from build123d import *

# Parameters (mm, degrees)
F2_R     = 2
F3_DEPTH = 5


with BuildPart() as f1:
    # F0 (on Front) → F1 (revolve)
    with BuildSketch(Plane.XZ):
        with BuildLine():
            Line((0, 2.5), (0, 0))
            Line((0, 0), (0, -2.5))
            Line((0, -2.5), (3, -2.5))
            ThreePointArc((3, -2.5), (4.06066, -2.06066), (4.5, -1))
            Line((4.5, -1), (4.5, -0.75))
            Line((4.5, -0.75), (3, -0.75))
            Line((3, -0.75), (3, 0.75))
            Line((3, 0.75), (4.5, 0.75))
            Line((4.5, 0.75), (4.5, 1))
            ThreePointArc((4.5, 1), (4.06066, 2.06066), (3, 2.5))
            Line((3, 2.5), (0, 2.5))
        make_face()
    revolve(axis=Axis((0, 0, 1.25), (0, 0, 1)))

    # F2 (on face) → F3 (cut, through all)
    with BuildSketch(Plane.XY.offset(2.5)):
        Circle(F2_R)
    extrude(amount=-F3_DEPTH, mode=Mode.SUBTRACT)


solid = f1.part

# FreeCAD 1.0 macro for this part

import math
import FreeCAD as App
import Part
import Sketcher

V = App.Vector

doc = App.newDocument("Part")
body = doc.addObject("PartDesign::Body", "Body")

# Sketch on XZ plane
sketch1 = body.newObject("Sketcher::SketchObject", "Sketch")
sketch1.AttachmentSupport = (doc.getObject("XZ_Plane"), [""])
sketch1.MapMode = "FlatFace"
sketch1.addGeometry(Part.LineSegment(V(0, 2.5, 0), V(0, -2.5, 0)), False)
sketch1.addGeometry(Part.LineSegment(V(0, -2.5, 0), V(3, -2.5, 0)), False)
sketch1.addGeometry(Part.ArcOfCircle(Part.Circle(V(3, -1, 0), V(0, 0, 1), 1.5), math.radians(-90), math.radians(0)), False)
sketch1.addGeometry(Part.LineSegment(V(4.5, -1, 0), V(4.5, -0.75, 0)), False)
sketch1.addGeometry(Part.LineSegment(V(4.5, -0.75, 0), V(3, -0.75, 0)), False)
sketch1.addGeometry(Part.LineSegment(V(3, -0.75, 0), V(3, 0.75, 0)), False)
sketch1.addGeometry(Part.LineSegment(V(3, 0.75, 0), V(4.5, 0.75, 0)), False)
sketch1.addGeometry(Part.LineSegment(V(4.5, 0.75, 0), V(4.5, 1, 0)), False)
sketch1.addGeometry(Part.ArcOfCircle(Part.Circle(V(3, 1, 0), V(0, 0, 1), 1.5), math.radians(0), math.radians(90)), False)
sketch1.addGeometry(Part.LineSegment(V(3, 2.5, 0), V(0, 2.5, 0)), False)
sketch1.addConstraint(Sketcher.Constraint("Coincident", 0, 2, 1, 1))
sketch1.addConstraint(Sketcher.Constraint("Tangent", 1, 2, 2, 1))
sketch1.addConstraint(Sketcher.Constraint("Tangent", 2, 2, 3, 1))
sketch1.addConstraint(Sketcher.Constraint("Coincident", 3, 2, 4, 1))
sketch1.addConstraint(Sketcher.Constraint("Coincident", 4, 2, 5, 1))
sketch1.addConstraint(Sketcher.Constraint("Coincident", 5, 2, 6, 1))
sketch1.addConstraint(Sketcher.Constraint("Coincident", 6, 2, 7, 1))
sketch1.addConstraint(Sketcher.Constraint("Tangent", 7, 2, 8, 1))
sketch1.addConstraint(Sketcher.Constraint("Tangent", 8, 2, 9, 1))
sketch1.addConstraint(Sketcher.Constraint("Coincident", 9, 2, 0, 1))
sketch1.addConstraint(Sketcher.Constraint("Vertical", 0))
sketch1.addConstraint(Sketcher.Constraint("Horizontal", 1))
sketch1.addConstraint(Sketcher.Constraint("Vertical", 3))
sketch1.addConstraint(Sketcher.Constraint("Horizontal", 4))
sketch1.addConstraint(Sketcher.Constraint("Vertical", 5))
sketch1.addConstraint(Sketcher.Constraint("Horizontal", 6))
sketch1.addConstraint(Sketcher.Constraint("Vertical", 7))
sketch1.addConstraint(Sketcher.Constraint("Horizontal", 9))
sketch1.addConstraint(Sketcher.Constraint("Equal", 2, 8))
sketch1.addConstraint(Sketcher.Constraint("Symmetric", 0, 2, 9, 2, -1, 1))
sketch1.addConstraint(Sketcher.Constraint("Symmetric", 3, 2, 6, 2, -1))
sketch1.addConstraint(Sketcher.Constraint("Vertical", 1, 2, 4, 2))
sketch1.addConstraint(Sketcher.Constraint("Equal", 6, 5))
sketch1.addConstraint(Sketcher.Constraint("Radius", 2, 1.500001))
sketch1.addConstraint(Sketcher.Constraint("DistanceX", 1, 1, 1, 2, 3.0))
sketch1.addConstraint(Sketcher.Constraint("DistanceY", 0, 2, 0, 1, 5.0))
revolution = body.newObject("PartDesign::Revolution", "Revolution")
revolution.Profile = sketch1
revolution.ReferenceAxis = (sketch1, ["V_Axis"])
revolution.Angle = 360

# Sketch on XY plane
sketch2 = body.newObject("Sketcher::SketchObject", "Sketch001")
sketch2.AttachmentSupport = (doc.getObject("XY_Plane"), [""])
sketch2.MapMode = "FlatFace"
sketch2.AttachmentOffset = App.Placement(V(0, 0, 2.5), App.Rotation())
sketch2.addGeometry(Part.Circle(V(0, 0, 0), V(0, 0, 1), 2), False)
sketch2.addConstraint(Sketcher.Constraint("Coincident", 0, 3, -1, 1))
sketch2.addConstraint(Sketcher.Constraint("Diameter", 0, 4.0))
pocket1 = body.newObject("PartDesign::Pocket", "Pocket")
pocket1.Profile = sketch2
pocket1.Type = "ThroughAll"

doc.recompute()
